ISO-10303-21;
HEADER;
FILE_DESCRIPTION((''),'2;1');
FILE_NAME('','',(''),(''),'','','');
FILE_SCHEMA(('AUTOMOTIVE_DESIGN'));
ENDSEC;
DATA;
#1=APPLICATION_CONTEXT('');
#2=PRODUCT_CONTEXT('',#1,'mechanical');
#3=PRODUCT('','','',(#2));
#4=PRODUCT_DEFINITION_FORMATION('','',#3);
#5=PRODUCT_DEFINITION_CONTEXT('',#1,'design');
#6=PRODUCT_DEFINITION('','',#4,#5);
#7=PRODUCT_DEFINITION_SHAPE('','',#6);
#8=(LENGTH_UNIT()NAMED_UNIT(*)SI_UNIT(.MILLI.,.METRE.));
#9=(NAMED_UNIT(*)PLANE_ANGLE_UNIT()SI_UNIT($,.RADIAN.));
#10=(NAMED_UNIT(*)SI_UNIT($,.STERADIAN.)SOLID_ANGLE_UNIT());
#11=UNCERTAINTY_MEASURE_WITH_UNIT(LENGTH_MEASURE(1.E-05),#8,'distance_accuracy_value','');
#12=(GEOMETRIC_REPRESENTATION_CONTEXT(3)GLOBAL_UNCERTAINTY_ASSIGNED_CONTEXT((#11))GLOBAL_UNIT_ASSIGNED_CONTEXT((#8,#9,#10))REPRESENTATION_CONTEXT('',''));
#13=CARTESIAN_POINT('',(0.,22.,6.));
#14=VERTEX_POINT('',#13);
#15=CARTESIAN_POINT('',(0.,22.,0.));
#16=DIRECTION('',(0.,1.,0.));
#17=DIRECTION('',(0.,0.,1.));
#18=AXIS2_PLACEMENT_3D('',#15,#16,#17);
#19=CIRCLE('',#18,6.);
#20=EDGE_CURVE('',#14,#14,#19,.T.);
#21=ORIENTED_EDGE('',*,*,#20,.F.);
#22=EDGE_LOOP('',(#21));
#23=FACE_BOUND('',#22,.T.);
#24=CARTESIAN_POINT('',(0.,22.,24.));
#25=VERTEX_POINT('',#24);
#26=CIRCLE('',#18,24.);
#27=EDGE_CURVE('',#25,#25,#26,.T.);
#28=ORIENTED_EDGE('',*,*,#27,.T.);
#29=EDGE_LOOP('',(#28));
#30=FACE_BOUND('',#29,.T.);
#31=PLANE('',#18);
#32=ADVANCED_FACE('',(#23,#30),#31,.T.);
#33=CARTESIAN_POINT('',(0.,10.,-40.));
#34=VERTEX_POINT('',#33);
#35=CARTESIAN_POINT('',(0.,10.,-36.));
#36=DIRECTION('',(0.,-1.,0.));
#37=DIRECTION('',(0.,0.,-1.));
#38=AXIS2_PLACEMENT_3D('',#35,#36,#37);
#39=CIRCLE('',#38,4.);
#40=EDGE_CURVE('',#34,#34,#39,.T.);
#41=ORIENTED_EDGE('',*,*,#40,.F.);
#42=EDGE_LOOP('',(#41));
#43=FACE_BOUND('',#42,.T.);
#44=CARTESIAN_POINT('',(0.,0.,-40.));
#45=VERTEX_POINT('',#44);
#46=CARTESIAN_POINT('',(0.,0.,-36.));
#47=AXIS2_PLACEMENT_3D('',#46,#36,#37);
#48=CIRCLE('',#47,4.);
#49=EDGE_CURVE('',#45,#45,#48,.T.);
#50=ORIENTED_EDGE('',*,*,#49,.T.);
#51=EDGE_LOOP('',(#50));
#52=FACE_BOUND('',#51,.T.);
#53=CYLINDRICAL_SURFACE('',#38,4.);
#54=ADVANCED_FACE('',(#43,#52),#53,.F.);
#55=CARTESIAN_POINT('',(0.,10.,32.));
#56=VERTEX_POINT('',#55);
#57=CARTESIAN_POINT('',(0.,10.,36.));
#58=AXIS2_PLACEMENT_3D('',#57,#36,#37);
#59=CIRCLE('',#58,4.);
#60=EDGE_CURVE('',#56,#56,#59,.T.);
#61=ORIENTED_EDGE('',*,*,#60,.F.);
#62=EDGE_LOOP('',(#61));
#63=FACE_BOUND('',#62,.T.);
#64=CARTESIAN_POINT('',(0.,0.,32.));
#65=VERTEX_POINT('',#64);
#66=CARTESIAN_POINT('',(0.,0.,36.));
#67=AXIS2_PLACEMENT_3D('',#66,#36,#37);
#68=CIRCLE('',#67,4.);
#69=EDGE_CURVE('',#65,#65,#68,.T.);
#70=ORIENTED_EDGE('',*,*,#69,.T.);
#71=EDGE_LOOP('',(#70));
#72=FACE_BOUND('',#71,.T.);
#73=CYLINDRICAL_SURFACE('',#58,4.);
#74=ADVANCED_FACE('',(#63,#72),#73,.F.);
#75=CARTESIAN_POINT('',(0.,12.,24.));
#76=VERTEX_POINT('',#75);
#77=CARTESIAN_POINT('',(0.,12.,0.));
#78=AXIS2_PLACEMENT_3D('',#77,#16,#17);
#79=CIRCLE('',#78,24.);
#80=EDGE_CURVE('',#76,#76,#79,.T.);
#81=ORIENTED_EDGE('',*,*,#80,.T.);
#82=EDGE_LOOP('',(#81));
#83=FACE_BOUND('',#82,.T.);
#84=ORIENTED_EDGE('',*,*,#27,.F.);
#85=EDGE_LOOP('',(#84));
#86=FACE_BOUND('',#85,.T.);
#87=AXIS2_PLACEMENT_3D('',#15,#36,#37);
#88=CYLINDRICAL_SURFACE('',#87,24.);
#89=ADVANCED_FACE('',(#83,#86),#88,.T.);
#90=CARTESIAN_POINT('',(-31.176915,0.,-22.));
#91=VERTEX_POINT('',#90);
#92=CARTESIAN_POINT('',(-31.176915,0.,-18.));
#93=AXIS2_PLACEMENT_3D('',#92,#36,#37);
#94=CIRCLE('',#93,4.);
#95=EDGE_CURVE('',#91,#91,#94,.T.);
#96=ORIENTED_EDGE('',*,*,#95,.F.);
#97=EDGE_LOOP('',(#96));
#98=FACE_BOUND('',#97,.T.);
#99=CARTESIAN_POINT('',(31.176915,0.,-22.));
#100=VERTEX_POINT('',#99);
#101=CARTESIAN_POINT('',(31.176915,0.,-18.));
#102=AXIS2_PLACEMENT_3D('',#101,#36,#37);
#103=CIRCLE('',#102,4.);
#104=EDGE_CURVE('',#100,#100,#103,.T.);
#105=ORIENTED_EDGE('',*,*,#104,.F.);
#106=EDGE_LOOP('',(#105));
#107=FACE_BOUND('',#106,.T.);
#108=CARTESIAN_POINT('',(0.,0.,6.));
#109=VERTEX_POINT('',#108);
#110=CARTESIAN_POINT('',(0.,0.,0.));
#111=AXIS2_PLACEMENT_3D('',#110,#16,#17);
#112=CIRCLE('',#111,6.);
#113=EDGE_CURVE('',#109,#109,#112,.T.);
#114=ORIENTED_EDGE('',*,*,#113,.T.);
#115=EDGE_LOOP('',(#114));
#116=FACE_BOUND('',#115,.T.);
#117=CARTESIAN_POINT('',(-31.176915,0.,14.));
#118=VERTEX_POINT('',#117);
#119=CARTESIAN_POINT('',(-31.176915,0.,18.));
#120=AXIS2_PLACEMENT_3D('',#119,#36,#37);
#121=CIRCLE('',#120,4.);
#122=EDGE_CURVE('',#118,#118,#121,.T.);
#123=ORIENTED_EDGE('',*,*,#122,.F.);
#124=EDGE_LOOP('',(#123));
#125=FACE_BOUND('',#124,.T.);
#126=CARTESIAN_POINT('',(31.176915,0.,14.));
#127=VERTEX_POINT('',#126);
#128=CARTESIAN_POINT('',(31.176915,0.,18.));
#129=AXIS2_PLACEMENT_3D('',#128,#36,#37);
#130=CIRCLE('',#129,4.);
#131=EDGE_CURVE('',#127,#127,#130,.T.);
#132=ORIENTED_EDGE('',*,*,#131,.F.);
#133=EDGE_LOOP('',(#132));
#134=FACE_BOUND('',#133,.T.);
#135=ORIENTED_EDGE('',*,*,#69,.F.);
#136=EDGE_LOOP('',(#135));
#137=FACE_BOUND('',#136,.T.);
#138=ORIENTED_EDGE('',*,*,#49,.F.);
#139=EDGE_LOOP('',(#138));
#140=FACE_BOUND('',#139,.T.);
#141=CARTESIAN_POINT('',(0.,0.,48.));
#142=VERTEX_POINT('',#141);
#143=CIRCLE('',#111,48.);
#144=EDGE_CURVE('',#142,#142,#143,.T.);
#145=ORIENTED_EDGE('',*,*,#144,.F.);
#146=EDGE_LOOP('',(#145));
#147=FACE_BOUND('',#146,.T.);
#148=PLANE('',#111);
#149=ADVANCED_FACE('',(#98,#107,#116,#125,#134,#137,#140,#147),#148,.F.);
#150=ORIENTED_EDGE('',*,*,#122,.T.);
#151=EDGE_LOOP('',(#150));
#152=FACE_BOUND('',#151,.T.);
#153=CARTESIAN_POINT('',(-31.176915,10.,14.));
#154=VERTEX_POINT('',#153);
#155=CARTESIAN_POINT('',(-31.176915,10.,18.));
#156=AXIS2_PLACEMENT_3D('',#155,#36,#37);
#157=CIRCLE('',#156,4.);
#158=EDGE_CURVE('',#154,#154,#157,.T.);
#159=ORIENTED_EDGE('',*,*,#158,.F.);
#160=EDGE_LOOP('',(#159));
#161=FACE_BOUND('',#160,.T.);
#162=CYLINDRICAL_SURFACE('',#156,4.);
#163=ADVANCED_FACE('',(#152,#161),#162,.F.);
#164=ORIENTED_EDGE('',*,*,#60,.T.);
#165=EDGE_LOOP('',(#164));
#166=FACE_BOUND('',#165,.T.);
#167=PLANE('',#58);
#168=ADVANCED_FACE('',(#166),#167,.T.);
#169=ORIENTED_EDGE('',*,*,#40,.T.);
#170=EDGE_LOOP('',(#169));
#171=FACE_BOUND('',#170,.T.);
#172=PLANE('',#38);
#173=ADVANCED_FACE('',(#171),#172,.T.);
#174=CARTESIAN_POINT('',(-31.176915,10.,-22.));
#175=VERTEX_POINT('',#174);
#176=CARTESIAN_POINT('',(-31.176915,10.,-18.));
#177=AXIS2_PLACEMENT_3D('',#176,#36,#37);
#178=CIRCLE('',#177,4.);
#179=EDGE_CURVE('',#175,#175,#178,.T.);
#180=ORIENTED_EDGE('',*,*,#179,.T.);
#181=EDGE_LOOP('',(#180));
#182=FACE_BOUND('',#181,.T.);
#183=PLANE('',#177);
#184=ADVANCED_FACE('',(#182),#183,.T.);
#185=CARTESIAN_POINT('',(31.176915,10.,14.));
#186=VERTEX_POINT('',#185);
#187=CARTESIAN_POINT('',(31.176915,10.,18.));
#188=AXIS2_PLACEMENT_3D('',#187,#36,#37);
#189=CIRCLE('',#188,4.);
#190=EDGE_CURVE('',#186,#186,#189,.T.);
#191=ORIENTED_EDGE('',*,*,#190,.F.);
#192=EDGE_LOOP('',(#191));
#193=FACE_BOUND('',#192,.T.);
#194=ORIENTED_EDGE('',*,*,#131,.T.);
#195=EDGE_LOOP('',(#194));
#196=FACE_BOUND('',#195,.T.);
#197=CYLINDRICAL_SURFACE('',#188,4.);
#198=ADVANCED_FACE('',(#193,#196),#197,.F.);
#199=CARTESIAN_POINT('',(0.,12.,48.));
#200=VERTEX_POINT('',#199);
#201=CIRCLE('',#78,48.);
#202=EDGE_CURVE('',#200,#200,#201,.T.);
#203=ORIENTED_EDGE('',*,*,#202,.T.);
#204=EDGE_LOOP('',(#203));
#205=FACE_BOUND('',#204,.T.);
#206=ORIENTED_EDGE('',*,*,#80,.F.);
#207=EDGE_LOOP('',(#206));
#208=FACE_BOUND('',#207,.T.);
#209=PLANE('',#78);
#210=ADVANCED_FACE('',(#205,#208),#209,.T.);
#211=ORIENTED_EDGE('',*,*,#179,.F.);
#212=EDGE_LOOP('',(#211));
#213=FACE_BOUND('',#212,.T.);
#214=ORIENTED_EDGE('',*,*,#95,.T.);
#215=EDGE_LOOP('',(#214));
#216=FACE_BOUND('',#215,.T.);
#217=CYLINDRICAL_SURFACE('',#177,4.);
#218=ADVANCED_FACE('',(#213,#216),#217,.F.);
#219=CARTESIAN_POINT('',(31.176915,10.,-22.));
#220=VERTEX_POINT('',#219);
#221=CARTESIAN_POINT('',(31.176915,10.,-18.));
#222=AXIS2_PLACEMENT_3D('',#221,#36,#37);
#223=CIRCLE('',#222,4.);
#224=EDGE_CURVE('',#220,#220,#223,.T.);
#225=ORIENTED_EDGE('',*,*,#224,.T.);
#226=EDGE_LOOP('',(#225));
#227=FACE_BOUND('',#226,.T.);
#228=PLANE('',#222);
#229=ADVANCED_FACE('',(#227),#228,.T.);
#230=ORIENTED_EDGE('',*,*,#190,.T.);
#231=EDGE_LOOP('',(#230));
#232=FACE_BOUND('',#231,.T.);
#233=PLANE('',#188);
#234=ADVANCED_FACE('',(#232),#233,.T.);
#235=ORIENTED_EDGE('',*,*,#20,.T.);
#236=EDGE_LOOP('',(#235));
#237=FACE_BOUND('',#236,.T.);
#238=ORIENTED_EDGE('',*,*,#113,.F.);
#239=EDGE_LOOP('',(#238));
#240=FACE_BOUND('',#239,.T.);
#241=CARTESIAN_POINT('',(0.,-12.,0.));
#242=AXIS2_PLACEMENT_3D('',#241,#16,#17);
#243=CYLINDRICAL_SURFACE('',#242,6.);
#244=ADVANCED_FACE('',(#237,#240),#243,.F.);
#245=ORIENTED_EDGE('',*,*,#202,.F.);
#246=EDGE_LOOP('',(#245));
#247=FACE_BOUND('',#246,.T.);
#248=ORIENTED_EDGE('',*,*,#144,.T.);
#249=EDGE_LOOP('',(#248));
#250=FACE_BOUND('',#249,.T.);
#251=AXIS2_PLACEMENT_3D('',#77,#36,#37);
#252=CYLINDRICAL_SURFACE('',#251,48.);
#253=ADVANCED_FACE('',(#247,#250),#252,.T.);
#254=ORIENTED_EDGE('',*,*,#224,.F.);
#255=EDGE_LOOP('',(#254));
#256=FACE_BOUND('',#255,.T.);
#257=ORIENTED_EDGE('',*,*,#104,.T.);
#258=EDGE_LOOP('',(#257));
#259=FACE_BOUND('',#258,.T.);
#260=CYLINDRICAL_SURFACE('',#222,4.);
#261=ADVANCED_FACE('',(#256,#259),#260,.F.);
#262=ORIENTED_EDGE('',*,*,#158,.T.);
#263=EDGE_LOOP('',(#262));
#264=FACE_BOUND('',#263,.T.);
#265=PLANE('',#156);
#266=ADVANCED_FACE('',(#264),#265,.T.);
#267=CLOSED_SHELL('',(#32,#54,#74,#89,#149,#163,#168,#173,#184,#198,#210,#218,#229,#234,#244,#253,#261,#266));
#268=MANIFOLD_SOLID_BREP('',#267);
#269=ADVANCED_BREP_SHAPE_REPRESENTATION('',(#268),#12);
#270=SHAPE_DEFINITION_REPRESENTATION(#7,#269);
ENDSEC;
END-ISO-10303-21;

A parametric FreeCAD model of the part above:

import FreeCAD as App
import Part
import Sketcher

doc = App.newDocument("Part")
body = doc.addObject("PartDesign::Body", "Body")

# Sketch on XZ plane
sketch1 = body.newObject("Sketcher::SketchObject", "Sketch")
sketch1.AttachmentSupport = (doc.getObject("XZ_Plane"), [""])
sketch1.MapMode = "FlatFace"
sketch1.addGeometry(Part.Circle(App.Vector(0, 0, 0), App.Vector(0, 0, 1), 48), False)
sketch1.addConstraint([
    Sketcher.Constraint("Coincident", 0, 3, -1, 1),
    Sketcher.Constraint("Diameter", 0, 96.0),
])
pad1 = body.newObject("PartDesign::Pad", "Pad")
pad1.Profile = sketch1
pad1.Length = 12
pad1.Reversed = True

# Sketch on XZ plane
sketch2 = body.newObject("Sketcher::SketchObject", "Sketch001")
sketch2.AttachmentSupport = (doc.getObject("XZ_Plane"), [""])
sketch2.MapMode = "FlatFace"
sketch2.AttachmentOffset = App.Placement(App.Vector(0, 0, -12), App.Rotation())
sketch2.addGeometry(Part.Circle(App.Vector(0, 0, 0), App.Vector(0, 0, 1), 24), False)
sketch2.addConstraint([
    Sketcher.Constraint("Coincident", 0, 3, -1, 1),
    Sketcher.Constraint("Diameter", 0, 48.0),
])
pad2 = body.newObject("PartDesign::Pad", "Pad001")
pad2.Profile = sketch2
pad2.Length = 10
pad2.Reversed = True

# Sketch on XZ plane
sketch3 = body.newObject("Sketcher::SketchObject", "Sketch002")
sketch3.AttachmentSupport = (doc.getObject("XZ_Plane"), [""])
sketch3.MapMode = "FlatFace"
sketch3.AttachmentOffset = App.Placement(App.Vector(0, 0, -22), App.Rotation())
sketch3.addGeometry(Part.Circle(App.Vector(0, 0, 0), App.Vector(0, 0, 1), 6), False)
sketch3.addConstraint([
    Sketcher.Constraint("Coincident", 0, 3, -1, 1),
    Sketcher.Constraint("Diameter", 0, 12.0),
])
pocket1 = body.newObject("PartDesign::Pocket", "Pocket")
pocket1.Profile = sketch3
pocket1.Length = 34
pocket1.Reversed = True

# Sketch on XZ plane
sketch4 = body.newObject("Sketcher::SketchObject", "Sketch003")
sketch4.AttachmentSupport = (doc.getObject("XZ_Plane"), [""])
sketch4.MapMode = "FlatFace"
sketch4.addGeometry([
    Part.Circle(App.Vector(0, 36, 0), App.Vector(0, 0, 1), 4),  # 0
    Part.Circle(App.Vector(31.176915, 18, 0), App.Vector(0, 0, 1), 4),  # 1
    Part.Circle(App.Vector(31.176915, -18, 0), App.Vector(0, 0, 1), 4),  # 2
    Part.Circle(App.Vector(0, -36, 0), App.Vector(0, 0, 1), 4),  # 3
    Part.Circle(App.Vector(-31.176915, -18, 0), App.Vector(0, 0, 1), 4),  # 4
    Part.Circle(App.Vector(-31.176915, 18, 0), App.Vector(0, 0, 1), 4),  # 5
], False)
sketch4.addConstraint([
    Sketcher.Constraint("Equal", 0, 1),
    Sketcher.Constraint("Equal", 1, 2),
    Sketcher.Constraint("Equal", 2, 3),
    Sketcher.Constraint("Equal", 3, 4),
    Sketcher.Constraint("Equal", 4, 5),
    Sketcher.Constraint("Symmetric", 0, 3, 3, 3, -1, 1),
    Sketcher.Constraint("Symmetric", 1, 3, 4, 3, -1, 1),
    Sketcher.Constraint("Symmetric", 2, 3, 5, 3, -1, 1),
    Sketcher.Constraint("Symmetric", 2, 3, 4, 3, -2),
    Sketcher.Constraint("PointOnObject", 0, 3, -2),
    Sketcher.Constraint("Diameter", 0, 8.0),
    Sketcher.Constraint("DistanceY", -1, 1, 0, 3, 36.0),
    Sketcher.Constraint("DistanceY", -1, 1, 1, 3, 18.0),
    Sketcher.Constraint("DistanceX", 4, 3, 2, 3, 62.353829),
])
pocket2 = body.newObject("PartDesign::Pocket", "Pocket001")
pocket2.Profile = sketch4
pocket2.Length = 10

doc.recompute()
